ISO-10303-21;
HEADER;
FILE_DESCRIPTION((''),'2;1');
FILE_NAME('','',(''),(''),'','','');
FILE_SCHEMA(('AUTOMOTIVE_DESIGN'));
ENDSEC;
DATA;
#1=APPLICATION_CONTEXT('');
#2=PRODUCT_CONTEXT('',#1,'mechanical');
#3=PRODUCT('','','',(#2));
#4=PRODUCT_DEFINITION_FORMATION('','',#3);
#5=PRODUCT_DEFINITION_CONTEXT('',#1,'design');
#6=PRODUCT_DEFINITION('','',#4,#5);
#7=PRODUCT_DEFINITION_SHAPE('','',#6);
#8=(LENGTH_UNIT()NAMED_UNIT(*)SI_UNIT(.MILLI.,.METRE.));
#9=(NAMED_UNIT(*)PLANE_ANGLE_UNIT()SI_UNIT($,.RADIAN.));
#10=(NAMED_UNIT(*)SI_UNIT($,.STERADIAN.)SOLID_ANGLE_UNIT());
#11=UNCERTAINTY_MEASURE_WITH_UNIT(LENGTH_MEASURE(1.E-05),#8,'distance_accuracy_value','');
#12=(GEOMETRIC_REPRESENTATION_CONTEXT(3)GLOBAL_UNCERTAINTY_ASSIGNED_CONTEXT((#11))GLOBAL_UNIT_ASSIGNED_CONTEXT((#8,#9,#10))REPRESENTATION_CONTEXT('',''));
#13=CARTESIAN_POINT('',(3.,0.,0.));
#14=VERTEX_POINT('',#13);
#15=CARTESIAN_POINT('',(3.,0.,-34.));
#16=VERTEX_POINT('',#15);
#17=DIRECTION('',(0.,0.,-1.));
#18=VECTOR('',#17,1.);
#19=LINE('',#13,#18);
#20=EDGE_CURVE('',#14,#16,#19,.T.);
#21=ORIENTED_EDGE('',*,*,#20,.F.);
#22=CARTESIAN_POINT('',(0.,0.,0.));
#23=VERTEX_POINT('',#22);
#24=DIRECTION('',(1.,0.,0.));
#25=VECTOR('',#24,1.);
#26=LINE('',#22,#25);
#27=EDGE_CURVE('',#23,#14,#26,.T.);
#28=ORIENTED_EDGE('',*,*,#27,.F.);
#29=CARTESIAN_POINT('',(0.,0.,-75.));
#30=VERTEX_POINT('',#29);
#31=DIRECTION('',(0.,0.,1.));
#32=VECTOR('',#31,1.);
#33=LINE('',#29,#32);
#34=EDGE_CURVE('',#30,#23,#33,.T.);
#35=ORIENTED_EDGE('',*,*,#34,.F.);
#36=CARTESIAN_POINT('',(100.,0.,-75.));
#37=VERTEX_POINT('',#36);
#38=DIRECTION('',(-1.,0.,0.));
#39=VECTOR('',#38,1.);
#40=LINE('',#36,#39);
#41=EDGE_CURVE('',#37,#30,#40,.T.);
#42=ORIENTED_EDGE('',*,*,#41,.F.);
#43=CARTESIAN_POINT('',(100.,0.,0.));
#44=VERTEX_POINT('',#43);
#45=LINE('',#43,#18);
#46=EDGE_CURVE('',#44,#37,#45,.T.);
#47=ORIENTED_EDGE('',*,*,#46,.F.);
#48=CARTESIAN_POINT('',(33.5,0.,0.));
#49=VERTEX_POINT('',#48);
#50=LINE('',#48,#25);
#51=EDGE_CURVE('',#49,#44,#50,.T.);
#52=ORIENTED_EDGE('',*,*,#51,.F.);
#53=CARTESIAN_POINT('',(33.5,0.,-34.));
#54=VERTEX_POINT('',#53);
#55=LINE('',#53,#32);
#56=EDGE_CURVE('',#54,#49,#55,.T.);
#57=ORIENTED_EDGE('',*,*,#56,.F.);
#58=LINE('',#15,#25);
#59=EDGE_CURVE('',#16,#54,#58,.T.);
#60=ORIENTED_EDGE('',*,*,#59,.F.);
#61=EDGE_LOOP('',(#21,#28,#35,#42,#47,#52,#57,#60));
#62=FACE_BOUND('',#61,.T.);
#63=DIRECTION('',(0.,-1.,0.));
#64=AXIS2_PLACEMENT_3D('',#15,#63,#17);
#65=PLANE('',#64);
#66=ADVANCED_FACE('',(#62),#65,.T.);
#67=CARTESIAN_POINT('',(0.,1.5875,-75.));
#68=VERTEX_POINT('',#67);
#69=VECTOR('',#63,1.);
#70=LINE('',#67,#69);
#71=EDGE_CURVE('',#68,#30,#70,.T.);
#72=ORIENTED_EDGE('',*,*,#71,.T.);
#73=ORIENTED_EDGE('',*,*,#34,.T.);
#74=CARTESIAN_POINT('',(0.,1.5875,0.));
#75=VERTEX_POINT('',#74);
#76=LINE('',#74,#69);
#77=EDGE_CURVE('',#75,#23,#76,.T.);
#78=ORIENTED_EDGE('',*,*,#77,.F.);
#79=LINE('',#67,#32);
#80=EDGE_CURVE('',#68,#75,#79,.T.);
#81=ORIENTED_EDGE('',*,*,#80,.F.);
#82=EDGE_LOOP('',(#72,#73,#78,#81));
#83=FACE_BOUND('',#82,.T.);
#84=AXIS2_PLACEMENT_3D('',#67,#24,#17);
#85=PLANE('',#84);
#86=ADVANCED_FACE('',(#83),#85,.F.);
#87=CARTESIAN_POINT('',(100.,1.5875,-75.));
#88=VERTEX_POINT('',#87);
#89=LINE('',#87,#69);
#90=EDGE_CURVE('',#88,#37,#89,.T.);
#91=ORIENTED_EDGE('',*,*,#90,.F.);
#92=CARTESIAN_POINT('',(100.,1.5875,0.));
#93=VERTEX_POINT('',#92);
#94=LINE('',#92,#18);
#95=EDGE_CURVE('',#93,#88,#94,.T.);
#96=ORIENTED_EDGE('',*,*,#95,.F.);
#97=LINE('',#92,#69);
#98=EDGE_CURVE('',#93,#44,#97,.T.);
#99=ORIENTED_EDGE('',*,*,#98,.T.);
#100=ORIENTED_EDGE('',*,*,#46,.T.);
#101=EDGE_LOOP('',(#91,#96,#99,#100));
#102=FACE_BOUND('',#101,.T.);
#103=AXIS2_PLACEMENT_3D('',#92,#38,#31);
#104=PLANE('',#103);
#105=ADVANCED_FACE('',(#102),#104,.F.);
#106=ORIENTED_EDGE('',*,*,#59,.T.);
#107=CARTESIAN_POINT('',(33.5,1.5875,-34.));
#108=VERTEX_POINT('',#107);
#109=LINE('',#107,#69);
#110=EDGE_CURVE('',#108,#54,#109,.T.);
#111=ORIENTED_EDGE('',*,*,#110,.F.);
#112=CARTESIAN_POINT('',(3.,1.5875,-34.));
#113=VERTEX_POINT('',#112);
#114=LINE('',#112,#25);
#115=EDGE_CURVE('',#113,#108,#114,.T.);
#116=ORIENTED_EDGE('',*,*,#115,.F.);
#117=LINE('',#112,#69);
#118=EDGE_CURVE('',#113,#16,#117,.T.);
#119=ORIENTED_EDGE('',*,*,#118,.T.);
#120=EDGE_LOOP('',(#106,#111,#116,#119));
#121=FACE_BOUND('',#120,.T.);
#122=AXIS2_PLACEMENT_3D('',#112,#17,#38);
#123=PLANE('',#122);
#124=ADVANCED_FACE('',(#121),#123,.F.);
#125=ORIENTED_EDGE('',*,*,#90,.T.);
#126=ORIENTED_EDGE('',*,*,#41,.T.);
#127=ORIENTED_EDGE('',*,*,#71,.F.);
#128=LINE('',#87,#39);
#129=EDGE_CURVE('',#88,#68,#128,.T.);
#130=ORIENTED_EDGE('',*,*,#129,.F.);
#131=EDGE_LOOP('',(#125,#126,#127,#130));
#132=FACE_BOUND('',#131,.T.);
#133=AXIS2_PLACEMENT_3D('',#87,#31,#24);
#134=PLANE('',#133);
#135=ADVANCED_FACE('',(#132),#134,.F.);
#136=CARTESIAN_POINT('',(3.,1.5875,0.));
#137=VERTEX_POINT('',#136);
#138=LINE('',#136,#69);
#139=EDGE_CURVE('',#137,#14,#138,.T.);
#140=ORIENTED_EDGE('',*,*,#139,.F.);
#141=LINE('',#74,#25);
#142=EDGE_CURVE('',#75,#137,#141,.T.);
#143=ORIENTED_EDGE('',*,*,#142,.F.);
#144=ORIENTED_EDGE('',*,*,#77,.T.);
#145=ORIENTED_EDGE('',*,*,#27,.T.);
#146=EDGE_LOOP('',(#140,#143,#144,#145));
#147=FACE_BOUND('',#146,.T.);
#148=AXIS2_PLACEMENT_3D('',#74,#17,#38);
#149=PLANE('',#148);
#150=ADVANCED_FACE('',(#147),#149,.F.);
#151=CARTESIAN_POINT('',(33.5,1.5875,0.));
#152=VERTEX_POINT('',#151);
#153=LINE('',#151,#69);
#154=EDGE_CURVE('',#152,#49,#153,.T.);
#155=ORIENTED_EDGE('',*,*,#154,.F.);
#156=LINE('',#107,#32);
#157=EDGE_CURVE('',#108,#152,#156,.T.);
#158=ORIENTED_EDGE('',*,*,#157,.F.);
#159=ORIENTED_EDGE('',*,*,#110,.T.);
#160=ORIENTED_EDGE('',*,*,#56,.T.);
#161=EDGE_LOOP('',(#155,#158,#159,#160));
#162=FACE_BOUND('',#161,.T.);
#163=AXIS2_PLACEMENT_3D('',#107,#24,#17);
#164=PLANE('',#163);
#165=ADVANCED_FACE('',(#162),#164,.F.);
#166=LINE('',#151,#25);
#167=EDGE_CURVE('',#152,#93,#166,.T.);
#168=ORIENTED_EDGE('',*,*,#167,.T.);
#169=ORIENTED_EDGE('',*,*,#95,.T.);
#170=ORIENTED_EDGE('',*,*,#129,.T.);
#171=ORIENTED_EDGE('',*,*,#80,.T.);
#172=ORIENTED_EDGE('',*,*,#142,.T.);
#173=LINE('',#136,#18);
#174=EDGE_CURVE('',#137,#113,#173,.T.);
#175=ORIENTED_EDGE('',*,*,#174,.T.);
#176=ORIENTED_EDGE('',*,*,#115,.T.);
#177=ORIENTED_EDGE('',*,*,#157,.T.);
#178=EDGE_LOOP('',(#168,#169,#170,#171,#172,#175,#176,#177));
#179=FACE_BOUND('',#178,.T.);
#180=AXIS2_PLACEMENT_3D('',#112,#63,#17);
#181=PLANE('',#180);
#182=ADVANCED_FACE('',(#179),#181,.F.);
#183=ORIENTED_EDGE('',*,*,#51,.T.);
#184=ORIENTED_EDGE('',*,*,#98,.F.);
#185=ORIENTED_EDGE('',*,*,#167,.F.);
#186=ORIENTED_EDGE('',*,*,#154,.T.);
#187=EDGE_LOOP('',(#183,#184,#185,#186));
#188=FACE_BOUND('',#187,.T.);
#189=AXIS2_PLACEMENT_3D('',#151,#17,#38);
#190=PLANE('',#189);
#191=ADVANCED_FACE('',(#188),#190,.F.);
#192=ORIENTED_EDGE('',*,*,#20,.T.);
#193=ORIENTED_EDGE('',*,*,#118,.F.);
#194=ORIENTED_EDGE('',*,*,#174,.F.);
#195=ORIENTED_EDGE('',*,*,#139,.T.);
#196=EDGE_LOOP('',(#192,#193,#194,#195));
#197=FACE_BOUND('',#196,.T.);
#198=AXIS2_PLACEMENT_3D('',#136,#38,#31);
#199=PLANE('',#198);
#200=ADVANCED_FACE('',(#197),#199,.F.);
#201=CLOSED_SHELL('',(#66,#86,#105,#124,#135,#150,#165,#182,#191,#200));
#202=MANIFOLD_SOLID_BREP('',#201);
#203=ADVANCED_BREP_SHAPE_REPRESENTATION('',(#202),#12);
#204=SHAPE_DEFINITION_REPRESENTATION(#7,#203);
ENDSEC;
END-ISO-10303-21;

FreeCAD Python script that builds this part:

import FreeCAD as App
import Part
import Sketcher

doc = App.newDocument("Part")
body = doc.addObject("PartDesign::Body", "Body")

sketch1 = doc.addObject("Sketcher::SketchObject", "Sketch")
body.addObject(sketch1)
sketch1.AttachmentSupport = (doc.XZ_Plane, [""])
sketch1.MapMode = "FlatFace"
sketch1.addGeometry(Part.LineSegment(App.Vector(0, 0, 0), App.Vector(3, 0, 0)), False)
sketch1.addGeometry(Part.LineSegment(App.Vector(3, 0, 0), App.Vector(3, -34, 0)), False)
sketch1.addGeometry(Part.LineSegment(App.Vector(3, -34, 0), App.Vector(33.5, -34, 0)), False)
sketch1.addGeometry(Part.LineSegment(App.Vector(33.5, -34, 0), App.Vector(33.5, 0, 0)), False)
sketch1.addGeometry(Part.LineSegment(App.Vector(33.5, 0, 0), App.Vector(100, 0, 0)), False)
sketch1.addGeometry(Part.LineSegment(App.Vector(100, 0, 0), App.Vector(100, -75, 0)), False)
sketch1.addGeometry(Part.LineSegment(App.Vector(100, -75, 0), App.Vector(0, -75, 0)), False)
sketch1.addGeometry(Part.LineSegment(App.Vector(0, -75, 0), App.Vector(0, 0, 0)), False)
sketch1.addConstraint(Sketcher.Constraint("Coincident", 0, 2, 1, 1))
sketch1.addConstraint(Sketcher.Constraint("Coincident", 1, 2, 2, 1))
sketch1.addConstraint(Sketcher.Constraint("Coincident", 2, 2, 3, 1))
sketch1.addConstraint(Sketcher.Constraint("Coincident", 3, 2, 4, 1))
sketch1.addConstraint(Sketcher.Constraint("Coincident", 4, 2, 5, 1))
sketch1.addConstraint(Sketcher.Constraint("Coincident", 5, 2, 6, 1))
sketch1.addConstraint(Sketcher.Constraint("Coincident", 6, 2, 7, 1))
sketch1.addConstraint(Sketcher.Constraint("Coincident", 7, 2, 0, 1))
sketch1.addConstraint(Sketcher.Constraint("Horizontal", 0))
sketch1.addConstraint(Sketcher.Constraint("Vertical", 1))
sketch1.addConstraint(Sketcher.Constraint("Horizontal", 2))
sketch1.addConstraint(Sketcher.Constraint("Vertical", 3))
sketch1.addConstraint(Sketcher.Constraint("Horizontal", 4))
sketch1.addConstraint(Sketcher.Constraint("Vertical", 5))
sketch1.addConstraint(Sketcher.Constraint("Horizontal", 6))
sketch1.addConstraint(Sketcher.Constraint("Vertical", 7))
sketch1.addConstraint(Sketcher.Constraint("Coincident", 7, 2, -1, 1))
sketch1.addConstraint(Sketcher.Constraint("PointOnObject", 3, 2, -1))
sketch1.addConstraint(Sketcher.Constraint("DistanceX", 0, 1, 0, 2, 3.0))
sketch1.addConstraint(Sketcher.Constraint("DistanceX", 6, 2, 6, 1, 100.0))
sketch1.addConstraint(Sketcher.Constraint("DistanceY", 1, 2, 1, 1, 34.0))
sketch1.addConstraint(Sketcher.Constraint("DistanceY", 5, 2, 5, 1, 75.0))
sketch1.addConstraint(Sketcher.Constraint("DistanceX", 2, 1, 2, 2, 30.5))
pad1 = doc.addObject("PartDesign::Pad", "Pad")
body.addObject(pad1)
pad1.Profile = sketch1
pad1.Length = 1.5875
pad1.Reversed = True

doc.recompute()
